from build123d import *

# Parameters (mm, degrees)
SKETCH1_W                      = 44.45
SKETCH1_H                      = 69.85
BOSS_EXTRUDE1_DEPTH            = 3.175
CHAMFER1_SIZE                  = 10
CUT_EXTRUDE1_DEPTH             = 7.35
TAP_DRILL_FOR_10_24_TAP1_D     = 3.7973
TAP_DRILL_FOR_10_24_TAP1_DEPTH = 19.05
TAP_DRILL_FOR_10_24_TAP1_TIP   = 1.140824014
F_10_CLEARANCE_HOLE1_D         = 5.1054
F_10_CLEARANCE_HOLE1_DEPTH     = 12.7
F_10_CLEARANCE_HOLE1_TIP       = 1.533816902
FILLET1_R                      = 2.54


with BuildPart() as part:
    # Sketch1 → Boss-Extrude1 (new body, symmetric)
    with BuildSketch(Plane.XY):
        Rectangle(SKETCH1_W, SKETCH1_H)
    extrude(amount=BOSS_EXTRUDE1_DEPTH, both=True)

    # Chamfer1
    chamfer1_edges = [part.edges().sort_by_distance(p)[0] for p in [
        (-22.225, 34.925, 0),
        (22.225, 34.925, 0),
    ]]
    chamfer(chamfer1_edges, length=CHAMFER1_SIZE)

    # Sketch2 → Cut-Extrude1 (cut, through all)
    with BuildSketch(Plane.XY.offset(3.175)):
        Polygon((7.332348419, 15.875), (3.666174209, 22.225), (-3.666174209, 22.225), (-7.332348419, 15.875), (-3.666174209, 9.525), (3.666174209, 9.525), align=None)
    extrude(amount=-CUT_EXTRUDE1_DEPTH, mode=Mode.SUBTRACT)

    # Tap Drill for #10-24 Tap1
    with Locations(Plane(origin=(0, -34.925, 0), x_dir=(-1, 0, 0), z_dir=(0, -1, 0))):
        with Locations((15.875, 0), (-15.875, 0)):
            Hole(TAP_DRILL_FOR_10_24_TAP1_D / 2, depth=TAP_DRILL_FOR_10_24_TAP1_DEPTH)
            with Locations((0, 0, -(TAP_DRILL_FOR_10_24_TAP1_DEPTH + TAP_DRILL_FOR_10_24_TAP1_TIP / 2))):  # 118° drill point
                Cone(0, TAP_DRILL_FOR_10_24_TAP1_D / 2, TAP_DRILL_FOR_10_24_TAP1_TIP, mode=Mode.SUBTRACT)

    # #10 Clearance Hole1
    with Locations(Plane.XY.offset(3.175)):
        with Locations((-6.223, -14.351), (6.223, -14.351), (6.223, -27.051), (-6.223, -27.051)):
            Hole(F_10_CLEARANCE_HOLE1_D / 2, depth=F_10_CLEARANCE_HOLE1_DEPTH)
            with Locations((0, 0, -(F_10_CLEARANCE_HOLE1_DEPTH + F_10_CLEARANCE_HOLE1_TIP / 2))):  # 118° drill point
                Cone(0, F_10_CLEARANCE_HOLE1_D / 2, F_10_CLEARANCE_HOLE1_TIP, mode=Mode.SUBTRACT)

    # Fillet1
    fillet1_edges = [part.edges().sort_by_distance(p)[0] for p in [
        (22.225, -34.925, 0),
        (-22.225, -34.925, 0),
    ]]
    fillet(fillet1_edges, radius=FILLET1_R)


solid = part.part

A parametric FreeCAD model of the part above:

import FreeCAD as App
import Part
import Sketcher
from FreeCAD import Vector
Q = App.Units.Quantity


def edges_at(feature, points):
    """Names of the edges that pass closest to the given points."""
    edges = feature.Shape.Edges
    near = lambda p: min(range(len(edges)), key=lambda i: edges[i].distToShape(Part.Vertex(*p))[0])
    return sorted({f"Edge{near(p) + 1}" for p in points})

doc = App.newDocument("Part")
body = doc.addObject("PartDesign::Body", "Body")

sketch1 = body.newObject("Sketcher::SketchObject", "Sketch")
sketch1.AttachmentSupport = (doc.getObject("XY_Plane"), [""])
sketch1.MapMode = "FlatFace"
sketch1.addGeometry(Part.LineSegment(Vector(-22.225, 34.925, 0), Vector(-22.225, -34.925, 0)), False)
sketch1.addGeometry(Part.LineSegment(Vector(-22.225, -34.925, 0), Vector(22.225, -34.925, 0)), False)
sketch1.addGeometry(Part.LineSegment(Vector(22.225, -34.925, 0), Vector(22.225, 34.925, 0)), False)
sketch1.addGeometry(Part.LineSegment(Vector(22.225, 34.925, 0), Vector(-22.225, 34.925, 0)), False)
sketch1.addConstraint(Sketcher.Constraint("Coincident", 0, 2, 1, 1))
sketch1.addConstraint(Sketcher.Constraint("Coincident", 1, 2, 2, 1))
sketch1.addConstraint(Sketcher.Constraint("Coincident", 2, 2, 3, 1))
sketch1.addConstraint(Sketcher.Constraint("Coincident", 3, 2, 0, 1))
sketch1.addConstraint(Sketcher.Constraint("Vertical", 0))
sketch1.addConstraint(Sketcher.Constraint("Horizontal", 1))
sketch1.addConstraint(Sketcher.Constraint("Vertical", 2))
sketch1.addConstraint(Sketcher.Constraint("Horizontal", 3))
sketch1.addConstraint(Sketcher.Constraint("Symmetric", 0, 2, 2, 2, -1, 1))
sketch1.addConstraint(Sketcher.Constraint("DistanceX", 1, 1, 1, 2, Q("1.75 in")))
sketch1.addConstraint(Sketcher.Constraint("DistanceY", 0, 2, 0, 1, Q("2.75 in")))
pad1 = body.newObject("PartDesign::Pad", "Pad")
pad1.Profile = sketch1
pad1.Length = Q("0.25 in")
pad1.Midplane = True
doc.recompute()

chamfer = body.newObject("PartDesign::Chamfer", "Chamfer")
chamfer.Base = (pad1, edges_at(pad1, [(-22.225, 34.925, 0), (22.225, 34.925, 0)]))
chamfer.Size = 10

sketch2 = body.newObject("Sketcher::SketchObject", "Sketch001")
sketch2.AttachmentSupport = (doc.getObject("XY_Plane"), [""])
sketch2.MapMode = "FlatFace"
sketch2.AttachmentOffset = App.Placement(Vector(0, 0, 0.125 * 25.4), App.Rotation())
sketch2.addGeometry(Part.LineSegment(Vector(7.332348, 15.875, 0), Vector(3.666174, 22.225, 0)), False)
sketch2.addGeometry(Part.LineSegment(Vector(3.666174, 22.225, 0), Vector(-3.666174, 22.225, 0)), False)
sketch2.addGeometry(Part.LineSegment(Vector(-3.666174, 22.225, 0), Vector(-7.332348, 15.875, 0)), False)
sketch2.addGeometry(Part.LineSegment(Vector(-7.332348, 15.875, 0), Vector(-3.666174, 9.525, 0)), False)
sketch2.addGeometry(Part.LineSegment(Vector(-3.666174, 9.525, 0), Vector(3.666174, 9.525, 0)), False)
sketch2.addGeometry(Part.LineSegment(Vector(3.666174, 9.525, 0), Vector(7.332348, 15.875, 0)), False)
sketch2.addConstraint(Sketcher.Constraint("Coincident", 0, 2, 1, 1))
sketch2.addConstraint(Sketcher.Constraint("Coincident", 1, 2, 2, 1))
sketch2.addConstraint(Sketcher.Constraint("Coincident", 2, 2, 3, 1))
sketch2.addConstraint(Sketcher.Constraint("Coincident", 3, 2, 4, 1))
sketch2.addConstraint(Sketcher.Constraint("Coincident", 4, 2, 5, 1))
sketch2.addConstraint(Sketcher.Constraint("Coincident", 5, 2, 0, 1))
sketch2.addConstraint(Sketcher.Constraint("Horizontal", 1))
sketch2.addConstraint(Sketcher.Constraint("Horizontal", 4))
sketch2.addConstraint(Sketcher.Constraint("Symmetric", 2, 2, 5, 2, -2))
sketch2.addConstraint(Sketcher.Constraint("Parallel", 0, 3))
sketch2.addConstraint(Sketcher.Constraint("Parallel", 2, 5))
sketch2.addConstraint(Sketcher.Constraint("Vertical", 1, 2, 3, 2))
sketch2.addConstraint(Sketcher.Constraint("Vertical", 0, 2, 4, 2))
sketch2.addConstraint(Sketcher.Constraint("Angle", 0, Q("120 deg")))
sketch2.addConstraint(Sketcher.Constraint("DistanceY", 3, 2, 1, 2, Q("0.5 in")))
sketch2.addConstraint(Sketcher.Constraint("DistanceY", -1, 1, 0, 2, Q("0.875 in")))
sketch2.addConstraint(Sketcher.Constraint("DistanceX", 1, 2, 1, 1, Q("7.332348 mm")))
pocket1 = body.newObject("PartDesign::Pocket", "Pocket")
pocket1.Profile = sketch2
pocket1.Type = "ThroughAll"

sketch3 = body.newObject("Sketcher::SketchObject", "Sketch002")
sketch3.AttachmentSupport = (doc.getObject("XZ_Plane"), [""])
sketch3.MapMode = "FlatFace"
sketch3.AttachmentOffset = App.Placement(Vector(0, 0, 1.375 * 25.4), App.Rotation())
sketch3.addGeometry(Part.Circle(Vector(-15.875, 0, 0), Vector(0, 0, 1), 1.89865), False)
sketch3.addGeometry(Part.Circle(Vector(15.875, 0, 0), Vector(0, 0, 1), 1.89865), False)
sketch3.addConstraint(Sketcher.Constraint("Equal", 0, 1))
sketch3.addConstraint(Sketcher.Constraint("Symmetric", 0, 3, 1, 3, -1, 1))
sketch3.addConstraint(Sketcher.Constraint("PointOnObject", 0, 3, -1))
sketch3.addConstraint(Sketcher.Constraint("Diameter", 0, Q("0.1495 in")))
sketch3.addConstraint(Sketcher.Constraint("DistanceX", 0, 3, 1, 3, Q("1.25 in")))
doc.recompute()
hole = body.newObject("PartDesign::Hole", "Hole")
hole.Profile = sketch3
hole.ThreadType = "None"
hole.Diameter = Q("0.1495 in")
hole.DepthType = "Dimension"
hole.Depth = Q("0.75 in")
hole.DrillPoint = "Angled"
hole.DrillPointAngle = 118

sketch4 = body.newObject("Sketcher::SketchObject", "Sketch003")
sketch4.AttachmentSupport = (doc.getObject("XY_Plane"), [""])
sketch4.MapMode = "FlatFace"
sketch4.AttachmentOffset = App.Placement(Vector(0, 0, 0.125 * 25.4), App.Rotation())
sketch4.addGeometry(Part.Circle(Vector(-6.223, -14.351, 0), Vector(0, 0, 1), 2.5527), False)
sketch4.addGeometry(Part.Circle(Vector(6.223, -14.351, 0), Vector(0, 0, 1), 2.5527), False)
sketch4.addGeometry(Part.Circle(Vector(6.223, -27.051, 0), Vector(0, 0, 1), 2.5527), False)
sketch4.addGeometry(Part.Circle(Vector(-6.223, -27.051, 0), Vector(0, 0, 1), 2.5527), False)
sketch4.addConstraint(Sketcher.Constraint("Equal", 0, 1))
sketch4.addConstraint(Sketcher.Constraint("Equal", 1, 2))
sketch4.addConstraint(Sketcher.Constraint("Equal", 2, 3))
sketch4.addConstraint(Sketcher.Constraint("Symmetric", 0, 3, 1, 3, -2))
sketch4.addConstraint(Sketcher.Constraint("Symmetric", 2, 3, 3, 3, -2))
sketch4.addConstraint(Sketcher.Constraint("Vertical", 1, 3, 2, 3))
sketch4.addConstraint(Sketcher.Constraint("Diameter", 0, Q("0.201 in")))
sketch4.addConstraint(Sketcher.Constraint("DistanceY", 2, 3, 1, 3, Q("0.5 in")))
sketch4.addConstraint(Sketcher.Constraint("DistanceX", 0, 3, 1, 3, Q("0.49 in")))
sketch4.addConstraint(Sketcher.Constraint("DistanceY", 0, 3, -1, 1, Q("0.565 in")))
doc.recompute()
hole2 = body.newObject("PartDesign::Hole", "Hole001")
hole2.Profile = sketch4
hole2.ThreadType = "None"
hole2.Diameter = Q("0.201 in")
hole2.DepthType = "Dimension"
hole2.Depth = Q("0.5 in")
hole2.DrillPoint = "Angled"
hole2.DrillPointAngle = 118
doc.recompute()

fillet = body.newObject("PartDesign::Fillet", "Fillet")
fillet.Base = (hole2, edges_at(hole2, [(22.225, -34.925, 0), (-22.225, -34.925, 0)]))
fillet.Radius = Q("0.1 in")

doc.recompute()
